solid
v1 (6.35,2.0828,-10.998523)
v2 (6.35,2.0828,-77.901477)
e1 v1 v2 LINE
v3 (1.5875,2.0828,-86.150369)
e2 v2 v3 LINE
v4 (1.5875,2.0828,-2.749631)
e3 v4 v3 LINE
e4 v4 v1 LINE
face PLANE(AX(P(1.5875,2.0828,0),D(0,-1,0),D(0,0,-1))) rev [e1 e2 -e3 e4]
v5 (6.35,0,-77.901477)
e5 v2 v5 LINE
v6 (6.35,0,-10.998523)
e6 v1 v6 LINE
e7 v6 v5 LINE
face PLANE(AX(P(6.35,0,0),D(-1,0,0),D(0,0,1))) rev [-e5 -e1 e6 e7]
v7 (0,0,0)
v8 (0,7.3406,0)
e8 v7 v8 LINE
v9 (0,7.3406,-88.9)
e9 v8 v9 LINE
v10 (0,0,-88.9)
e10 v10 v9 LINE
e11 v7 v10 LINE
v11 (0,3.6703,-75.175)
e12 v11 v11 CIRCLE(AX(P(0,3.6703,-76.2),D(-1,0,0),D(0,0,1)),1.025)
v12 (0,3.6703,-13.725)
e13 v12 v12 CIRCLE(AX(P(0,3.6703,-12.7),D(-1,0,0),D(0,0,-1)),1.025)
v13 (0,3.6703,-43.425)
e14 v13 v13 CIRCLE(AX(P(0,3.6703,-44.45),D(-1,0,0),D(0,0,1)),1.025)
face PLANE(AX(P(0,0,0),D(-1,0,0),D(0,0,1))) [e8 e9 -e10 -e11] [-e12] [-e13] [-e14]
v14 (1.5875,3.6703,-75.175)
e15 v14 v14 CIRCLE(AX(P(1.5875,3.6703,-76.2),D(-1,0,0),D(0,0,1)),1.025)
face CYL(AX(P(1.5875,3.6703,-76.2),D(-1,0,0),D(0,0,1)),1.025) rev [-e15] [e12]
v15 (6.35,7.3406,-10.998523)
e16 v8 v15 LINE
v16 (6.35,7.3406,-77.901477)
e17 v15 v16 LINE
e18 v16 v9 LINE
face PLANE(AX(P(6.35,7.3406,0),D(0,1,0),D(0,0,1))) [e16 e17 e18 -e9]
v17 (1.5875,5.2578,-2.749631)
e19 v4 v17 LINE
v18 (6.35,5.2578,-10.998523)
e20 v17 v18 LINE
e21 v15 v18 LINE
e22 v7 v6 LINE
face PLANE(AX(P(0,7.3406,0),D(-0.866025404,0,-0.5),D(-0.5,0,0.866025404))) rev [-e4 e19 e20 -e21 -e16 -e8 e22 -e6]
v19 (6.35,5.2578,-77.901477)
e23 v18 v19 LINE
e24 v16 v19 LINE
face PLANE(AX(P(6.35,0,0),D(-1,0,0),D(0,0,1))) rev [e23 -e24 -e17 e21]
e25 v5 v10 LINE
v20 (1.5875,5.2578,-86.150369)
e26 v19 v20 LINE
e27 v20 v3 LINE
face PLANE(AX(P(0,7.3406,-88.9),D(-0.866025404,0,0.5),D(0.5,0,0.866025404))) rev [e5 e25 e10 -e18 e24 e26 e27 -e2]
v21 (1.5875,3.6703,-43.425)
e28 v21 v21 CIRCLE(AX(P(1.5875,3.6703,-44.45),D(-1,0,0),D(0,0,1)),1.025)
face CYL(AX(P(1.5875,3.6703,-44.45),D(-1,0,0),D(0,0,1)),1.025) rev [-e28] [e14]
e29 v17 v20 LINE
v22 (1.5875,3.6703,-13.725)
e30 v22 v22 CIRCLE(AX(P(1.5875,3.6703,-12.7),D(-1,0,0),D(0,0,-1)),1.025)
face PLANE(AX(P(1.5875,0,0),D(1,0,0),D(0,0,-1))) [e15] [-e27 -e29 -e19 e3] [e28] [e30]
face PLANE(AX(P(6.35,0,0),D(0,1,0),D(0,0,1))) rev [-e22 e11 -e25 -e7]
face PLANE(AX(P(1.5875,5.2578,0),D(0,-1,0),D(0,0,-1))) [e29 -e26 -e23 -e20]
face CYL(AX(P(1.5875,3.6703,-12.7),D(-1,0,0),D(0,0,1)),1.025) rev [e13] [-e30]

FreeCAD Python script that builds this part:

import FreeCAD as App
import Part
import Sketcher
from FreeCAD import Vector
Q = App.Units.Quantity

doc = App.newDocument("Part")
params = doc.addObject("Spreadsheet::Sheet", "Params")
for row, (alias, value) in enumerate([
    ("sketch1_height", "3.5 in"),
    ("sketch1_width", "0.289 in"),
    ("pad1_length", "0.25 in"),
    ("sketch2_height", "3.5 in"),
    ("sketch2_width", "0.125 in"),
    ("pocket1_length", "0.1875 in"),
    ("sketch3_length", "0.5 in"),
    ("pocket2_length", "0.289 in"),
    ("pocket3_length", "0.0625 in"),
], start=1):
    params.set(f"A{row}", alias)
    params.set(f"B{row}", "=" + value)
    params.setAlias(f"B{row}", alias)

body = doc.addObject("PartDesign::Body", "Body")

# Sketch on YZ plane
sketch1 = body.newObject("Sketcher::SketchObject", "Sketch")
sketch1.AttachmentSupport = (doc.getObject("YZ_Plane"), [""])
sketch1.MapMode = "FlatFace"
sketch1.addGeometry(Part.LineSegment(Vector(7, 0, 0), Vector(0, 0, 0)), False)
sketch1.addGeometry(Part.LineSegment(Vector(0, 0, 0), Vector(0, -89, 0)), False)
sketch1.addGeometry(Part.LineSegment(Vector(0, -89, 0), Vector(7, -89, 0)), False)
sketch1.addGeometry(Part.LineSegment(Vector(7, -89, 0), Vector(7, 0, 0)), False)
sketch1.addConstraint(Sketcher.Constraint("Coincident", 0, 2, 1, 1))
sketch1.addConstraint(Sketcher.Constraint("Coincident", 1, 2, 2, 1))
sketch1.addConstraint(Sketcher.Constraint("Coincident", 2, 2, 3, 1))
sketch1.addConstraint(Sketcher.Constraint("Coincident", 3, 2, 0, 1))
sketch1.addConstraint(Sketcher.Constraint("Horizontal", 0))
sketch1.addConstraint(Sketcher.Constraint("Vertical", 1))
sketch1.addConstraint(Sketcher.Constraint("Horizontal", 2))
sketch1.addConstraint(Sketcher.Constraint("Vertical", 3))
sketch1.addConstraint(Sketcher.Constraint("Coincident", 0, 2, -1, 1))
sketch1.addConstraint(Sketcher.Constraint("DistanceY", 1, 2, 1, 1, Q("3.5 in")))
sketch1.addConstraint(Sketcher.Constraint("DistanceX", 0, 2, 0, 1, Q("0.289 in")))
sketch1.setExpression("Constraints[9]", "Params.sketch1_height")
sketch1.setExpression("Constraints[10]", "Params.sketch1_width")
pad1 = body.newObject("PartDesign::Pad", "Pad")
pad1.Profile = sketch1
pad1.setExpression("Length", "Params.pad1_length")

# Sketch on YZ plane
sketch2 = body.newObject("Sketcher::SketchObject", "Sketch001")
sketch2.AttachmentSupport = (doc.getObject("YZ_Plane"), [""])
sketch2.MapMode = "FlatFace"
sketch2.AttachmentOffset = App.Placement(Vector(0, 0, 0.25 * 25.4), App.Rotation())
sketch2.addGeometry(Part.LineSegment(Vector(5.3, 0, 0), Vector(2.1, 0, 0)), False)
sketch2.addGeometry(Part.LineSegment(Vector(2.1, 0, 0), Vector(2.1, -88.9, 0)), False)
sketch2.addGeometry(Part.LineSegment(Vector(2.1, -88.9, 0), Vector(5.3, -88.9, 0)), False)
sketch2.addGeometry(Part.LineSegment(Vector(5.3, -88.9, 0), Vector(5.3, 0, 0)), False)
sketch2.addConstraint(Sketcher.Constraint("Coincident", 0, 2, 1, 1))
sketch2.addConstraint(Sketcher.Constraint("Coincident", 1, 2, 2, 1))
sketch2.addConstraint(Sketcher.Constraint("Coincident", 2, 2, 3, 1))
sketch2.addConstraint(Sketcher.Constraint("Coincident", 3, 2, 0, 1))
sketch2.addConstraint(Sketcher.Constraint("Horizontal", 0))
sketch2.addConstraint(Sketcher.Constraint("Vertical", 1))
sketch2.addConstraint(Sketcher.Constraint("Horizontal", 2))
sketch2.addConstraint(Sketcher.Constraint("Vertical", 3))
sketch2.addConstraint(Sketcher.Constraint("PointOnObject", 0, 2, -1))
sketch2.addConstraint(Sketcher.Constraint("DistanceY", 1, 2, 1, 1, Q("3.5 in")))
sketch2.addConstraint(Sketcher.Constraint("DistanceX", 0, 2, 0, 1, Q("0.125 in")))
sketch2.addConstraint(Sketcher.Constraint("DistanceX", -1, 1, 0, 2, Q("0.082 in")))
sketch2.setExpression("Constraints[9]", "Params.sketch2_height")
sketch2.setExpression("Constraints[10]", "Params.sketch2_width")
pocket1 = body.newObject("PartDesign::Pocket", "Pocket")
pocket1.Profile = sketch2
pocket1.setExpression("Length", "Params.pocket1_length")

# Sketch on XZ plane
sketch3 = body.newObject("Sketcher::SketchObject", "Sketch002")
sketch3.AttachmentSupport = (doc.getObject("XZ_Plane"), [""])
sketch3.MapMode = "FlatFace"
sketch3.addGeometry(Part.LineSegment(Vector(0, 0, 0), Vector(6, -11, 0)), False)
sketch3.addGeometry(Part.LineSegment(Vector(6, -11, 0), Vector(6, 0, 0)), False)
sketch3.addGeometry(Part.LineSegment(Vector(6, 0, 0), Vector(0, 0, 0)), False)
sketch3.addGeometry(Part.LineSegment(Vector(6, -89, 0), Vector(6, -78, 0)), False)
sketch3.addGeometry(Part.LineSegment(Vector(6, -78, 0), Vector(0, -89, 0)), False)
sketch3.addGeometry(Part.LineSegment(Vector(0, -89, 0), Vector(6, -89, 0)), False)
sketch3.addConstraint(Sketcher.Constraint("Coincident", 0, 2, 1, 1))
sketch3.addConstraint(Sketcher.Constraint("Coincident", 1, 2, 2, 1))
sketch3.addConstraint(Sketcher.Constraint("Coincident", 2, 2, 0, 1))
sketch3.addConstraint(Sketcher.Constraint("Coincident", 3, 2, 4, 1))
sketch3.addConstraint(Sketcher.Constraint("Coincident", 4, 2, 5, 1))
sketch3.addConstraint(Sketcher.Constraint("Coincident", 5, 2, 3, 1))
sketch3.addConstraint(Sketcher.Constraint("Vertical", 1))
sketch3.addConstraint(Sketcher.Constraint("Horizontal", 2))
sketch3.addConstraint(Sketcher.Constraint("Vertical", 3))
sketch3.addConstraint(Sketcher.Constraint("Horizontal", 5))
sketch3.addConstraint(Sketcher.Constraint("Coincident", 2, 2, -1, 1))
sketch3.addConstraint(Sketcher.Constraint("PointOnObject", 4, 2, -2))
sketch3.addConstraint(Sketcher.Constraint("Vertical", 1, 2, 3, 2))
sketch3.addConstraint(Sketcher.Constraint("Equal", 1, 3))
sketch3.addConstraint(Sketcher.Constraint("Angle", 0, Q("-60 deg")))
sketch3.addConstraint(Sketcher.Constraint("Distance", 0, Q("0.5 in")))
sketch3.addConstraint(Sketcher.Constraint("DistanceY", 4, 2, -1, 1, Q("3.5 in")))
sketch3.setExpression("Constraints[15]", "Params.sketch3_length")
pocket2 = body.newObject("PartDesign::Pocket", "Pocket001")
pocket2.Profile = sketch3
pocket2.setExpression("Length", "Params.pocket2_length")

# Sketch on YZ plane
sketch4 = body.newObject("Sketcher::SketchObject", "Sketch003")
sketch4.AttachmentSupport = (doc.getObject("YZ_Plane"), [""])
sketch4.MapMode = "FlatFace"
sketch4.addGeometry(Part.Circle(Vector(3.7, -76.2, 0), Vector(0, 0, 1), 1), False)
sketch4.addGeometry(Part.Circle(Vector(3.7, -44.5, 0), Vector(0, 0, 1), 1), False)
sketch4.addGeometry(Part.Circle(Vector(3.7, -12.7, 0), Vector(0, 0, 1), 1), False)
sketch4.addConstraint(Sketcher.Constraint("Equal", 0, 1))
sketch4.addConstraint(Sketcher.Constraint("Equal", 1, 2))
sketch4.addConstraint(Sketcher.Constraint("Vertical", 0, 3, 1, 3))
sketch4.addConstraint(Sketcher.Constraint("Vertical", 1, 3, 2, 3))
sketch4.addConstraint(Sketcher.Constraint("DistanceY", 0, 3, -1, 1, Q("3 in")))
sketch4.addConstraint(Sketcher.Constraint("DistanceY", 2, 3, -1, 1, Q("0.5 in")))
sketch4.addConstraint(Sketcher.Constraint("Diameter", 0, 2.05))
sketch4.addConstraint(Sketcher.Constraint("DistanceY", 1, 3, -1, 1, Q("1.75 in")))
sketch4.addConstraint(Sketcher.Constraint("DistanceX", -1, 1, 0, 3, Q("0.1445 in")))
pocket3 = body.newObject("PartDesign::Pocket", "Pocket002")
pocket3.Profile = sketch4
pocket3.setExpression("Length", "Params.pocket3_length")
pocket3.Reversed = True

doc.recompute()
